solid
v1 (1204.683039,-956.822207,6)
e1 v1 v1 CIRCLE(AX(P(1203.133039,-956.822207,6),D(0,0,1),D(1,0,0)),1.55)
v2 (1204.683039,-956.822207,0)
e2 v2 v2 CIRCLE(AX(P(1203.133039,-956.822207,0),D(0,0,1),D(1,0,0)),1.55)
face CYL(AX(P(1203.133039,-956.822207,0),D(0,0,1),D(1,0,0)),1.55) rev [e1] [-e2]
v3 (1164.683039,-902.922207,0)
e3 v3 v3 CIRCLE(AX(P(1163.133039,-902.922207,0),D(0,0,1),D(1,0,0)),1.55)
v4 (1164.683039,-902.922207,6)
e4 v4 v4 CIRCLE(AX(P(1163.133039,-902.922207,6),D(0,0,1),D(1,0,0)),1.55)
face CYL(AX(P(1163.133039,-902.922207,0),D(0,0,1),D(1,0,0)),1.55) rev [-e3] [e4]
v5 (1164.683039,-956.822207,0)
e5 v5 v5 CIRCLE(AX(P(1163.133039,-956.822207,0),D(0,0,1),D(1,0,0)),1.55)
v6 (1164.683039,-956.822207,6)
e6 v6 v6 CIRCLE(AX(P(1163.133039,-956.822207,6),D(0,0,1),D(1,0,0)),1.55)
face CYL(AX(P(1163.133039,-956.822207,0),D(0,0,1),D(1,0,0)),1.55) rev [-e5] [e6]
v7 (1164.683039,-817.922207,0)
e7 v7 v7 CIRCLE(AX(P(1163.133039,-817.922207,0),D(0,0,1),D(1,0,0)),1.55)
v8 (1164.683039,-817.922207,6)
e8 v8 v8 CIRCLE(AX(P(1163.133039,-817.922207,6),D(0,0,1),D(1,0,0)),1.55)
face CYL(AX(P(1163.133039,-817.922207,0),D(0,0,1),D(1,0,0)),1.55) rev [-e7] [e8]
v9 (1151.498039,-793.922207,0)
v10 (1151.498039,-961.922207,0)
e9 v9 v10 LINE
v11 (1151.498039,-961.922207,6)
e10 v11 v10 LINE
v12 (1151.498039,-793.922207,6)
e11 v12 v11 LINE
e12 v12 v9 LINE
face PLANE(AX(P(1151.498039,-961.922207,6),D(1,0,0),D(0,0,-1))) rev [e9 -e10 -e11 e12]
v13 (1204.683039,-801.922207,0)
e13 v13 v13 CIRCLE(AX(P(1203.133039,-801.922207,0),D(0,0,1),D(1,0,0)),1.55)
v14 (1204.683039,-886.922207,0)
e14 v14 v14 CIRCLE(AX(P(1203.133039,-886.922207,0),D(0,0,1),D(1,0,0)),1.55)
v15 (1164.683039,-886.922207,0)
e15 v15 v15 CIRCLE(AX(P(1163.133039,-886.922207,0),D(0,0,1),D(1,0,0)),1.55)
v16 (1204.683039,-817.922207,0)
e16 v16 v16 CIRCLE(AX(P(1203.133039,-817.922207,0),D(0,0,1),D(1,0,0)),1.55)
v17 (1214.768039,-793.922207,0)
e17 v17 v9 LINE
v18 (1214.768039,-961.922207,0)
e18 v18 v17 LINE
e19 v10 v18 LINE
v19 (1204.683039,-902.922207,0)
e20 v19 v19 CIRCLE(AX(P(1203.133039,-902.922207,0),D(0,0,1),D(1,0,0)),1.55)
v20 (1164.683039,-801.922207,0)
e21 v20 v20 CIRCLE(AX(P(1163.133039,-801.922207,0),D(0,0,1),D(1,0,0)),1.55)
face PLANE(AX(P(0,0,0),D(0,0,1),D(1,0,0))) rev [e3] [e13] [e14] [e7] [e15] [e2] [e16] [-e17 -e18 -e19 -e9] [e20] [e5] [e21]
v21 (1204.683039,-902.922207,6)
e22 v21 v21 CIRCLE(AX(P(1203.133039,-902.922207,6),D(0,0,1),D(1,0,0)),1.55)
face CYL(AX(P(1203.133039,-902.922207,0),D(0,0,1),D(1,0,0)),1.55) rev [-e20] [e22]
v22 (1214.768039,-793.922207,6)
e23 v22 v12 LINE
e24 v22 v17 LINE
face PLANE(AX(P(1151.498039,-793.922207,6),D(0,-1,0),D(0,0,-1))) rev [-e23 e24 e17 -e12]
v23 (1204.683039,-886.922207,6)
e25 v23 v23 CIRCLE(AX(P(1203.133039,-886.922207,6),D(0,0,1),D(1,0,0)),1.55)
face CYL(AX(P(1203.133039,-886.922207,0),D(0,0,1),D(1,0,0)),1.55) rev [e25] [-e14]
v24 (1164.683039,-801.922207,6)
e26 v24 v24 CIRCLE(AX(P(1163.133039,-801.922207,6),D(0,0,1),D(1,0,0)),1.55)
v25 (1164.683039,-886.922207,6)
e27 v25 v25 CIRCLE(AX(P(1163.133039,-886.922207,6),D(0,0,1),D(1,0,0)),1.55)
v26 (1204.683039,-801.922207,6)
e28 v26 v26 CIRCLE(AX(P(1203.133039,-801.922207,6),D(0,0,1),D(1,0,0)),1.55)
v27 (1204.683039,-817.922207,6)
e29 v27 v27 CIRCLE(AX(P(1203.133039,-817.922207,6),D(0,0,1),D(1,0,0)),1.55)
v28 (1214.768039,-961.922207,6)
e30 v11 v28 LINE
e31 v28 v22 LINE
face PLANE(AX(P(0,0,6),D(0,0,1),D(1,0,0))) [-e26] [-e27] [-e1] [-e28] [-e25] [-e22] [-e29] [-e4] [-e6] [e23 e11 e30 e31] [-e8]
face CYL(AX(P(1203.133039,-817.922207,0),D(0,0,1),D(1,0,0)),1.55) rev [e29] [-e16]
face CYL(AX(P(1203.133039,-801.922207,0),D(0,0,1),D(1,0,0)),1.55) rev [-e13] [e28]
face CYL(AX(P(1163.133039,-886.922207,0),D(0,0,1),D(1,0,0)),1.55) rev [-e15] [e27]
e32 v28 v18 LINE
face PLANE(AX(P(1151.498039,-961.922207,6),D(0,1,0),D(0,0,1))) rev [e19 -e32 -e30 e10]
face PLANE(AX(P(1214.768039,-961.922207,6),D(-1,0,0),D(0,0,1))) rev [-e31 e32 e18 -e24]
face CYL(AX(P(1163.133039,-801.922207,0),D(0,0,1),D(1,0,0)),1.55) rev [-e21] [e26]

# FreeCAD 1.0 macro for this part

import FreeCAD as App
import Part
import Sketcher

V = App.Vector
Q = App.Units.Quantity


def add_polygon(sketch, points):
    """Adds a closed chain of lines whose ends are joined by coincident constraints."""
    first, n = sketch.GeometryCount, len(points)
    for a, b in zip(points, points[1:] + points[:1]):
        sketch.addGeometry(Part.LineSegment(App.Vector(*a, 0), App.Vector(*b, 0)), False)
    for i in range(n):
        sketch.addConstraint(Sketcher.Constraint("Coincident", first + i, 2, first + (i + 1) % n, 1))

doc = App.newDocument("Part")
body = doc.addObject("PartDesign::Body", "Body")

sketch1 = body.newObject("Sketcher::SketchObject", "Sketch")
sketch1.AttachmentSupport = (doc.getObject("XY_Plane"), [""])
sketch1.MapMode = "FlatFace"
add_polygon(sketch1, [(1151, -794), (1151, -962), (1215, -962), (1215, -794)])
sketch1.addConstraint(Sketcher.Constraint("Vertical", 0))
sketch1.addConstraint(Sketcher.Constraint("Horizontal", 1))
sketch1.addConstraint(Sketcher.Constraint("Vertical", 2))
sketch1.addConstraint(Sketcher.Constraint("Horizontal", 3))
sketch1.addConstraint(Sketcher.Constraint("DistanceY", 0, 2, 0, 1, Q("168 mm")))
sketch1.addConstraint(Sketcher.Constraint("DistanceX", 1, 1, 1, 2, Q("63.27 mm")))
sketch1.addConstraint(Sketcher.Constraint("DistanceX", -1, 1, 0, 2, Q("1151.498039 mm")))
sketch1.addConstraint(Sketcher.Constraint("DistanceY", 0, 2, -1, 1, Q("961.922207 mm")))
pad1 = body.newObject("PartDesign::Pad", "Pad")
pad1.Profile = sketch1
pad1.Length = 6

sketch2 = body.newObject("Sketcher::SketchObject", "Sketch001")
sketch2.AttachmentSupport = (doc.getObject("XY_Plane"), [""])
sketch2.MapMode = "FlatFace"
sketch2.AttachmentOffset = App.Placement(V(0, 0, 6), App.Rotation())
sketch2.addGeometry(Part.Circle(V(1203.1, -956.8, 0), V(0, 0, 1), 1.6), False)
sketch2.addGeometry(Part.Circle(V(1163.1, -956.8, 0), V(0, 0, 1), 1.6), False)
sketch2.addGeometry(Part.Circle(V(1163.1, -886.9, 0), V(0, 0, 1), 1.6), False)
sketch2.addGeometry(Part.Circle(V(1203.1, -886.9, 0), V(0, 0, 1), 1.6), False)
sketch2.addGeometry(Part.Circle(V(1203.1, -801.9, 0), V(0, 0, 1), 1.6), False)
sketch2.addGeometry(Part.Circle(V(1163.1, -801.9, 0), V(0, 0, 1), 1.6), False)
sketch2.addConstraint(Sketcher.Constraint("Equal", 0, 1))
sketch2.addConstraint(Sketcher.Constraint("Equal", 1, 2))
sketch2.addConstraint(Sketcher.Constraint("Equal", 2, 3))
sketch2.addConstraint(Sketcher.Constraint("Equal", 3, 4))
sketch2.addConstraint(Sketcher.Constraint("Equal", 4, 5))
sketch2.addConstraint(Sketcher.Constraint("Horizontal", 0, 3, 1, 3))
sketch2.addConstraint(Sketcher.Constraint("Horizontal", 2, 3, 3, 3))
sketch2.addConstraint(Sketcher.Constraint("Horizontal", 4, 3, 5, 3))
sketch2.addConstraint(Sketcher.Constraint("Vertical", 1, 3, 2, 3))
sketch2.addConstraint(Sketcher.Constraint("Vertical", 0, 3, 3, 3))
sketch2.addConstraint(Sketcher.Constraint("Vertical", 3, 3, 4, 3))
sketch2.addConstraint(Sketcher.Constraint("Vertical", 2, 3, 5, 3))
sketch2.addConstraint(Sketcher.Constraint("Diameter", 0, Q("3.1 mm")))
sketch2.addConstraint(Sketcher.Constraint("DistanceX", 1, 3, 0, 3, Q("40 mm")))
sketch2.addConstraint(Sketcher.Constraint("DistanceY", 3, 3, 4, 3, Q("85 mm")))
sketch2.addConstraint(Sketcher.Constraint("DistanceY", 1, 3, 2, 3, Q("69.9 mm")))
sketch2.addConstraint(Sketcher.Constraint("DistanceX", -1, 1, 0, 3, Q("1203.133039 mm")))
sketch2.addConstraint(Sketcher.Constraint("DistanceY", 0, 3, -1, 1, Q("956.822207 mm")))
pocket1 = body.newObject("PartDesign::Pocket", "Pocket")
pocket1.Profile = sketch2
pocket1.Length = 6
doc.recompute()

linearpattern = body.newObject("PartDesign::LinearPattern", "LinearPattern")
linearpattern.Originals = [pocket1]
linearpattern.Direction = (doc.getObject("Y_Axis"), [""])
linearpattern.Mode = "offset"
linearpattern.Offset = 16
linearpattern.Occurrences = 2
linearpattern.Reversed = True
body.Tip = linearpattern

doc.recompute()
